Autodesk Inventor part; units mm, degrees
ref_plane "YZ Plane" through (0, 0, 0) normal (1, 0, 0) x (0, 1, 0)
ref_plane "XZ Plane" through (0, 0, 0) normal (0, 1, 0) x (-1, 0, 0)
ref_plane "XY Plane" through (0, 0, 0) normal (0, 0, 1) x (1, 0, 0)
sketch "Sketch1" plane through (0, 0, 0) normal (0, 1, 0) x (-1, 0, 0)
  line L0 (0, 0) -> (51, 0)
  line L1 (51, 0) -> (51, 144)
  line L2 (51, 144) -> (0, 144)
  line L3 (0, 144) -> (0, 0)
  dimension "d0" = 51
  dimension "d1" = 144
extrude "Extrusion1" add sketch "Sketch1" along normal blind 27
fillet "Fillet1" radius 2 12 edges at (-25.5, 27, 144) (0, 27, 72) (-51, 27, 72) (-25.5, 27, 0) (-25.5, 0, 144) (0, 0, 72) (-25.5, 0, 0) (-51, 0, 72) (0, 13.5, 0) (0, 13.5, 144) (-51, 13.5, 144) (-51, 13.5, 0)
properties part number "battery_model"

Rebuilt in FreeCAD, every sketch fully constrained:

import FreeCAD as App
import Part
import Sketcher

doc = App.newDocument("Part")
body = doc.addObject("PartDesign::Body", "Body")

# Sketch on XZ plane
sketch1 = doc.addObject("Sketcher::SketchObject", "Sketch")
body.addObject(sketch1)
sketch1.AttachmentSupport = (doc.XZ_Plane, [""])
sketch1.MapMode = "FlatFace"
sketch1.addGeometry(Part.LineSegment(App.Vector(0, 144, 0), App.Vector(0, 0, 0)), False)
sketch1.addGeometry(Part.LineSegment(App.Vector(0, 0, 0), App.Vector(-51, 0, 0)), False)
sketch1.addGeometry(Part.LineSegment(App.Vector(-51, 0, 0), App.Vector(-51, 144, 0)), False)
sketch1.addGeometry(Part.LineSegment(App.Vector(-51, 144, 0), App.Vector(0, 144, 0)), False)
sketch1.addConstraint(Sketcher.Constraint("Coincident", 0, 2, 1, 1))
sketch1.addConstraint(Sketcher.Constraint("Coincident", 1, 2, 2, 1))
sketch1.addConstraint(Sketcher.Constraint("Coincident", 2, 2, 3, 1))
sketch1.addConstraint(Sketcher.Constraint("Coincident", 3, 2, 0, 1))
sketch1.addConstraint(Sketcher.Constraint("Vertical", 0))
sketch1.addConstraint(Sketcher.Constraint("Horizontal", 1))
sketch1.addConstraint(Sketcher.Constraint("Vertical", 2))
sketch1.addConstraint(Sketcher.Constraint("Horizontal", 3))
sketch1.addConstraint(Sketcher.Constraint("Coincident", 0, 2, -1, 1))
sketch1.addConstraint(Sketcher.Constraint("DistanceX", 1, 2, 1, 1, 51.0))
sketch1.addConstraint(Sketcher.Constraint("DistanceY", 0, 2, 0, 1, 144.0))
pad1 = doc.addObject("PartDesign::Pad", "Pad")
body.addObject(pad1)
pad1.Profile = sketch1
pad1.Length = 27
pad1.Reversed = True
doc.recompute()

fillet = doc.addObject("PartDesign::Fillet", "Fillet")
body.addObject(fillet)
fillet.Base = (pad1, ["Edge1"])
fillet.UseAllEdges = True
fillet.Radius = 2

doc.recompute()
